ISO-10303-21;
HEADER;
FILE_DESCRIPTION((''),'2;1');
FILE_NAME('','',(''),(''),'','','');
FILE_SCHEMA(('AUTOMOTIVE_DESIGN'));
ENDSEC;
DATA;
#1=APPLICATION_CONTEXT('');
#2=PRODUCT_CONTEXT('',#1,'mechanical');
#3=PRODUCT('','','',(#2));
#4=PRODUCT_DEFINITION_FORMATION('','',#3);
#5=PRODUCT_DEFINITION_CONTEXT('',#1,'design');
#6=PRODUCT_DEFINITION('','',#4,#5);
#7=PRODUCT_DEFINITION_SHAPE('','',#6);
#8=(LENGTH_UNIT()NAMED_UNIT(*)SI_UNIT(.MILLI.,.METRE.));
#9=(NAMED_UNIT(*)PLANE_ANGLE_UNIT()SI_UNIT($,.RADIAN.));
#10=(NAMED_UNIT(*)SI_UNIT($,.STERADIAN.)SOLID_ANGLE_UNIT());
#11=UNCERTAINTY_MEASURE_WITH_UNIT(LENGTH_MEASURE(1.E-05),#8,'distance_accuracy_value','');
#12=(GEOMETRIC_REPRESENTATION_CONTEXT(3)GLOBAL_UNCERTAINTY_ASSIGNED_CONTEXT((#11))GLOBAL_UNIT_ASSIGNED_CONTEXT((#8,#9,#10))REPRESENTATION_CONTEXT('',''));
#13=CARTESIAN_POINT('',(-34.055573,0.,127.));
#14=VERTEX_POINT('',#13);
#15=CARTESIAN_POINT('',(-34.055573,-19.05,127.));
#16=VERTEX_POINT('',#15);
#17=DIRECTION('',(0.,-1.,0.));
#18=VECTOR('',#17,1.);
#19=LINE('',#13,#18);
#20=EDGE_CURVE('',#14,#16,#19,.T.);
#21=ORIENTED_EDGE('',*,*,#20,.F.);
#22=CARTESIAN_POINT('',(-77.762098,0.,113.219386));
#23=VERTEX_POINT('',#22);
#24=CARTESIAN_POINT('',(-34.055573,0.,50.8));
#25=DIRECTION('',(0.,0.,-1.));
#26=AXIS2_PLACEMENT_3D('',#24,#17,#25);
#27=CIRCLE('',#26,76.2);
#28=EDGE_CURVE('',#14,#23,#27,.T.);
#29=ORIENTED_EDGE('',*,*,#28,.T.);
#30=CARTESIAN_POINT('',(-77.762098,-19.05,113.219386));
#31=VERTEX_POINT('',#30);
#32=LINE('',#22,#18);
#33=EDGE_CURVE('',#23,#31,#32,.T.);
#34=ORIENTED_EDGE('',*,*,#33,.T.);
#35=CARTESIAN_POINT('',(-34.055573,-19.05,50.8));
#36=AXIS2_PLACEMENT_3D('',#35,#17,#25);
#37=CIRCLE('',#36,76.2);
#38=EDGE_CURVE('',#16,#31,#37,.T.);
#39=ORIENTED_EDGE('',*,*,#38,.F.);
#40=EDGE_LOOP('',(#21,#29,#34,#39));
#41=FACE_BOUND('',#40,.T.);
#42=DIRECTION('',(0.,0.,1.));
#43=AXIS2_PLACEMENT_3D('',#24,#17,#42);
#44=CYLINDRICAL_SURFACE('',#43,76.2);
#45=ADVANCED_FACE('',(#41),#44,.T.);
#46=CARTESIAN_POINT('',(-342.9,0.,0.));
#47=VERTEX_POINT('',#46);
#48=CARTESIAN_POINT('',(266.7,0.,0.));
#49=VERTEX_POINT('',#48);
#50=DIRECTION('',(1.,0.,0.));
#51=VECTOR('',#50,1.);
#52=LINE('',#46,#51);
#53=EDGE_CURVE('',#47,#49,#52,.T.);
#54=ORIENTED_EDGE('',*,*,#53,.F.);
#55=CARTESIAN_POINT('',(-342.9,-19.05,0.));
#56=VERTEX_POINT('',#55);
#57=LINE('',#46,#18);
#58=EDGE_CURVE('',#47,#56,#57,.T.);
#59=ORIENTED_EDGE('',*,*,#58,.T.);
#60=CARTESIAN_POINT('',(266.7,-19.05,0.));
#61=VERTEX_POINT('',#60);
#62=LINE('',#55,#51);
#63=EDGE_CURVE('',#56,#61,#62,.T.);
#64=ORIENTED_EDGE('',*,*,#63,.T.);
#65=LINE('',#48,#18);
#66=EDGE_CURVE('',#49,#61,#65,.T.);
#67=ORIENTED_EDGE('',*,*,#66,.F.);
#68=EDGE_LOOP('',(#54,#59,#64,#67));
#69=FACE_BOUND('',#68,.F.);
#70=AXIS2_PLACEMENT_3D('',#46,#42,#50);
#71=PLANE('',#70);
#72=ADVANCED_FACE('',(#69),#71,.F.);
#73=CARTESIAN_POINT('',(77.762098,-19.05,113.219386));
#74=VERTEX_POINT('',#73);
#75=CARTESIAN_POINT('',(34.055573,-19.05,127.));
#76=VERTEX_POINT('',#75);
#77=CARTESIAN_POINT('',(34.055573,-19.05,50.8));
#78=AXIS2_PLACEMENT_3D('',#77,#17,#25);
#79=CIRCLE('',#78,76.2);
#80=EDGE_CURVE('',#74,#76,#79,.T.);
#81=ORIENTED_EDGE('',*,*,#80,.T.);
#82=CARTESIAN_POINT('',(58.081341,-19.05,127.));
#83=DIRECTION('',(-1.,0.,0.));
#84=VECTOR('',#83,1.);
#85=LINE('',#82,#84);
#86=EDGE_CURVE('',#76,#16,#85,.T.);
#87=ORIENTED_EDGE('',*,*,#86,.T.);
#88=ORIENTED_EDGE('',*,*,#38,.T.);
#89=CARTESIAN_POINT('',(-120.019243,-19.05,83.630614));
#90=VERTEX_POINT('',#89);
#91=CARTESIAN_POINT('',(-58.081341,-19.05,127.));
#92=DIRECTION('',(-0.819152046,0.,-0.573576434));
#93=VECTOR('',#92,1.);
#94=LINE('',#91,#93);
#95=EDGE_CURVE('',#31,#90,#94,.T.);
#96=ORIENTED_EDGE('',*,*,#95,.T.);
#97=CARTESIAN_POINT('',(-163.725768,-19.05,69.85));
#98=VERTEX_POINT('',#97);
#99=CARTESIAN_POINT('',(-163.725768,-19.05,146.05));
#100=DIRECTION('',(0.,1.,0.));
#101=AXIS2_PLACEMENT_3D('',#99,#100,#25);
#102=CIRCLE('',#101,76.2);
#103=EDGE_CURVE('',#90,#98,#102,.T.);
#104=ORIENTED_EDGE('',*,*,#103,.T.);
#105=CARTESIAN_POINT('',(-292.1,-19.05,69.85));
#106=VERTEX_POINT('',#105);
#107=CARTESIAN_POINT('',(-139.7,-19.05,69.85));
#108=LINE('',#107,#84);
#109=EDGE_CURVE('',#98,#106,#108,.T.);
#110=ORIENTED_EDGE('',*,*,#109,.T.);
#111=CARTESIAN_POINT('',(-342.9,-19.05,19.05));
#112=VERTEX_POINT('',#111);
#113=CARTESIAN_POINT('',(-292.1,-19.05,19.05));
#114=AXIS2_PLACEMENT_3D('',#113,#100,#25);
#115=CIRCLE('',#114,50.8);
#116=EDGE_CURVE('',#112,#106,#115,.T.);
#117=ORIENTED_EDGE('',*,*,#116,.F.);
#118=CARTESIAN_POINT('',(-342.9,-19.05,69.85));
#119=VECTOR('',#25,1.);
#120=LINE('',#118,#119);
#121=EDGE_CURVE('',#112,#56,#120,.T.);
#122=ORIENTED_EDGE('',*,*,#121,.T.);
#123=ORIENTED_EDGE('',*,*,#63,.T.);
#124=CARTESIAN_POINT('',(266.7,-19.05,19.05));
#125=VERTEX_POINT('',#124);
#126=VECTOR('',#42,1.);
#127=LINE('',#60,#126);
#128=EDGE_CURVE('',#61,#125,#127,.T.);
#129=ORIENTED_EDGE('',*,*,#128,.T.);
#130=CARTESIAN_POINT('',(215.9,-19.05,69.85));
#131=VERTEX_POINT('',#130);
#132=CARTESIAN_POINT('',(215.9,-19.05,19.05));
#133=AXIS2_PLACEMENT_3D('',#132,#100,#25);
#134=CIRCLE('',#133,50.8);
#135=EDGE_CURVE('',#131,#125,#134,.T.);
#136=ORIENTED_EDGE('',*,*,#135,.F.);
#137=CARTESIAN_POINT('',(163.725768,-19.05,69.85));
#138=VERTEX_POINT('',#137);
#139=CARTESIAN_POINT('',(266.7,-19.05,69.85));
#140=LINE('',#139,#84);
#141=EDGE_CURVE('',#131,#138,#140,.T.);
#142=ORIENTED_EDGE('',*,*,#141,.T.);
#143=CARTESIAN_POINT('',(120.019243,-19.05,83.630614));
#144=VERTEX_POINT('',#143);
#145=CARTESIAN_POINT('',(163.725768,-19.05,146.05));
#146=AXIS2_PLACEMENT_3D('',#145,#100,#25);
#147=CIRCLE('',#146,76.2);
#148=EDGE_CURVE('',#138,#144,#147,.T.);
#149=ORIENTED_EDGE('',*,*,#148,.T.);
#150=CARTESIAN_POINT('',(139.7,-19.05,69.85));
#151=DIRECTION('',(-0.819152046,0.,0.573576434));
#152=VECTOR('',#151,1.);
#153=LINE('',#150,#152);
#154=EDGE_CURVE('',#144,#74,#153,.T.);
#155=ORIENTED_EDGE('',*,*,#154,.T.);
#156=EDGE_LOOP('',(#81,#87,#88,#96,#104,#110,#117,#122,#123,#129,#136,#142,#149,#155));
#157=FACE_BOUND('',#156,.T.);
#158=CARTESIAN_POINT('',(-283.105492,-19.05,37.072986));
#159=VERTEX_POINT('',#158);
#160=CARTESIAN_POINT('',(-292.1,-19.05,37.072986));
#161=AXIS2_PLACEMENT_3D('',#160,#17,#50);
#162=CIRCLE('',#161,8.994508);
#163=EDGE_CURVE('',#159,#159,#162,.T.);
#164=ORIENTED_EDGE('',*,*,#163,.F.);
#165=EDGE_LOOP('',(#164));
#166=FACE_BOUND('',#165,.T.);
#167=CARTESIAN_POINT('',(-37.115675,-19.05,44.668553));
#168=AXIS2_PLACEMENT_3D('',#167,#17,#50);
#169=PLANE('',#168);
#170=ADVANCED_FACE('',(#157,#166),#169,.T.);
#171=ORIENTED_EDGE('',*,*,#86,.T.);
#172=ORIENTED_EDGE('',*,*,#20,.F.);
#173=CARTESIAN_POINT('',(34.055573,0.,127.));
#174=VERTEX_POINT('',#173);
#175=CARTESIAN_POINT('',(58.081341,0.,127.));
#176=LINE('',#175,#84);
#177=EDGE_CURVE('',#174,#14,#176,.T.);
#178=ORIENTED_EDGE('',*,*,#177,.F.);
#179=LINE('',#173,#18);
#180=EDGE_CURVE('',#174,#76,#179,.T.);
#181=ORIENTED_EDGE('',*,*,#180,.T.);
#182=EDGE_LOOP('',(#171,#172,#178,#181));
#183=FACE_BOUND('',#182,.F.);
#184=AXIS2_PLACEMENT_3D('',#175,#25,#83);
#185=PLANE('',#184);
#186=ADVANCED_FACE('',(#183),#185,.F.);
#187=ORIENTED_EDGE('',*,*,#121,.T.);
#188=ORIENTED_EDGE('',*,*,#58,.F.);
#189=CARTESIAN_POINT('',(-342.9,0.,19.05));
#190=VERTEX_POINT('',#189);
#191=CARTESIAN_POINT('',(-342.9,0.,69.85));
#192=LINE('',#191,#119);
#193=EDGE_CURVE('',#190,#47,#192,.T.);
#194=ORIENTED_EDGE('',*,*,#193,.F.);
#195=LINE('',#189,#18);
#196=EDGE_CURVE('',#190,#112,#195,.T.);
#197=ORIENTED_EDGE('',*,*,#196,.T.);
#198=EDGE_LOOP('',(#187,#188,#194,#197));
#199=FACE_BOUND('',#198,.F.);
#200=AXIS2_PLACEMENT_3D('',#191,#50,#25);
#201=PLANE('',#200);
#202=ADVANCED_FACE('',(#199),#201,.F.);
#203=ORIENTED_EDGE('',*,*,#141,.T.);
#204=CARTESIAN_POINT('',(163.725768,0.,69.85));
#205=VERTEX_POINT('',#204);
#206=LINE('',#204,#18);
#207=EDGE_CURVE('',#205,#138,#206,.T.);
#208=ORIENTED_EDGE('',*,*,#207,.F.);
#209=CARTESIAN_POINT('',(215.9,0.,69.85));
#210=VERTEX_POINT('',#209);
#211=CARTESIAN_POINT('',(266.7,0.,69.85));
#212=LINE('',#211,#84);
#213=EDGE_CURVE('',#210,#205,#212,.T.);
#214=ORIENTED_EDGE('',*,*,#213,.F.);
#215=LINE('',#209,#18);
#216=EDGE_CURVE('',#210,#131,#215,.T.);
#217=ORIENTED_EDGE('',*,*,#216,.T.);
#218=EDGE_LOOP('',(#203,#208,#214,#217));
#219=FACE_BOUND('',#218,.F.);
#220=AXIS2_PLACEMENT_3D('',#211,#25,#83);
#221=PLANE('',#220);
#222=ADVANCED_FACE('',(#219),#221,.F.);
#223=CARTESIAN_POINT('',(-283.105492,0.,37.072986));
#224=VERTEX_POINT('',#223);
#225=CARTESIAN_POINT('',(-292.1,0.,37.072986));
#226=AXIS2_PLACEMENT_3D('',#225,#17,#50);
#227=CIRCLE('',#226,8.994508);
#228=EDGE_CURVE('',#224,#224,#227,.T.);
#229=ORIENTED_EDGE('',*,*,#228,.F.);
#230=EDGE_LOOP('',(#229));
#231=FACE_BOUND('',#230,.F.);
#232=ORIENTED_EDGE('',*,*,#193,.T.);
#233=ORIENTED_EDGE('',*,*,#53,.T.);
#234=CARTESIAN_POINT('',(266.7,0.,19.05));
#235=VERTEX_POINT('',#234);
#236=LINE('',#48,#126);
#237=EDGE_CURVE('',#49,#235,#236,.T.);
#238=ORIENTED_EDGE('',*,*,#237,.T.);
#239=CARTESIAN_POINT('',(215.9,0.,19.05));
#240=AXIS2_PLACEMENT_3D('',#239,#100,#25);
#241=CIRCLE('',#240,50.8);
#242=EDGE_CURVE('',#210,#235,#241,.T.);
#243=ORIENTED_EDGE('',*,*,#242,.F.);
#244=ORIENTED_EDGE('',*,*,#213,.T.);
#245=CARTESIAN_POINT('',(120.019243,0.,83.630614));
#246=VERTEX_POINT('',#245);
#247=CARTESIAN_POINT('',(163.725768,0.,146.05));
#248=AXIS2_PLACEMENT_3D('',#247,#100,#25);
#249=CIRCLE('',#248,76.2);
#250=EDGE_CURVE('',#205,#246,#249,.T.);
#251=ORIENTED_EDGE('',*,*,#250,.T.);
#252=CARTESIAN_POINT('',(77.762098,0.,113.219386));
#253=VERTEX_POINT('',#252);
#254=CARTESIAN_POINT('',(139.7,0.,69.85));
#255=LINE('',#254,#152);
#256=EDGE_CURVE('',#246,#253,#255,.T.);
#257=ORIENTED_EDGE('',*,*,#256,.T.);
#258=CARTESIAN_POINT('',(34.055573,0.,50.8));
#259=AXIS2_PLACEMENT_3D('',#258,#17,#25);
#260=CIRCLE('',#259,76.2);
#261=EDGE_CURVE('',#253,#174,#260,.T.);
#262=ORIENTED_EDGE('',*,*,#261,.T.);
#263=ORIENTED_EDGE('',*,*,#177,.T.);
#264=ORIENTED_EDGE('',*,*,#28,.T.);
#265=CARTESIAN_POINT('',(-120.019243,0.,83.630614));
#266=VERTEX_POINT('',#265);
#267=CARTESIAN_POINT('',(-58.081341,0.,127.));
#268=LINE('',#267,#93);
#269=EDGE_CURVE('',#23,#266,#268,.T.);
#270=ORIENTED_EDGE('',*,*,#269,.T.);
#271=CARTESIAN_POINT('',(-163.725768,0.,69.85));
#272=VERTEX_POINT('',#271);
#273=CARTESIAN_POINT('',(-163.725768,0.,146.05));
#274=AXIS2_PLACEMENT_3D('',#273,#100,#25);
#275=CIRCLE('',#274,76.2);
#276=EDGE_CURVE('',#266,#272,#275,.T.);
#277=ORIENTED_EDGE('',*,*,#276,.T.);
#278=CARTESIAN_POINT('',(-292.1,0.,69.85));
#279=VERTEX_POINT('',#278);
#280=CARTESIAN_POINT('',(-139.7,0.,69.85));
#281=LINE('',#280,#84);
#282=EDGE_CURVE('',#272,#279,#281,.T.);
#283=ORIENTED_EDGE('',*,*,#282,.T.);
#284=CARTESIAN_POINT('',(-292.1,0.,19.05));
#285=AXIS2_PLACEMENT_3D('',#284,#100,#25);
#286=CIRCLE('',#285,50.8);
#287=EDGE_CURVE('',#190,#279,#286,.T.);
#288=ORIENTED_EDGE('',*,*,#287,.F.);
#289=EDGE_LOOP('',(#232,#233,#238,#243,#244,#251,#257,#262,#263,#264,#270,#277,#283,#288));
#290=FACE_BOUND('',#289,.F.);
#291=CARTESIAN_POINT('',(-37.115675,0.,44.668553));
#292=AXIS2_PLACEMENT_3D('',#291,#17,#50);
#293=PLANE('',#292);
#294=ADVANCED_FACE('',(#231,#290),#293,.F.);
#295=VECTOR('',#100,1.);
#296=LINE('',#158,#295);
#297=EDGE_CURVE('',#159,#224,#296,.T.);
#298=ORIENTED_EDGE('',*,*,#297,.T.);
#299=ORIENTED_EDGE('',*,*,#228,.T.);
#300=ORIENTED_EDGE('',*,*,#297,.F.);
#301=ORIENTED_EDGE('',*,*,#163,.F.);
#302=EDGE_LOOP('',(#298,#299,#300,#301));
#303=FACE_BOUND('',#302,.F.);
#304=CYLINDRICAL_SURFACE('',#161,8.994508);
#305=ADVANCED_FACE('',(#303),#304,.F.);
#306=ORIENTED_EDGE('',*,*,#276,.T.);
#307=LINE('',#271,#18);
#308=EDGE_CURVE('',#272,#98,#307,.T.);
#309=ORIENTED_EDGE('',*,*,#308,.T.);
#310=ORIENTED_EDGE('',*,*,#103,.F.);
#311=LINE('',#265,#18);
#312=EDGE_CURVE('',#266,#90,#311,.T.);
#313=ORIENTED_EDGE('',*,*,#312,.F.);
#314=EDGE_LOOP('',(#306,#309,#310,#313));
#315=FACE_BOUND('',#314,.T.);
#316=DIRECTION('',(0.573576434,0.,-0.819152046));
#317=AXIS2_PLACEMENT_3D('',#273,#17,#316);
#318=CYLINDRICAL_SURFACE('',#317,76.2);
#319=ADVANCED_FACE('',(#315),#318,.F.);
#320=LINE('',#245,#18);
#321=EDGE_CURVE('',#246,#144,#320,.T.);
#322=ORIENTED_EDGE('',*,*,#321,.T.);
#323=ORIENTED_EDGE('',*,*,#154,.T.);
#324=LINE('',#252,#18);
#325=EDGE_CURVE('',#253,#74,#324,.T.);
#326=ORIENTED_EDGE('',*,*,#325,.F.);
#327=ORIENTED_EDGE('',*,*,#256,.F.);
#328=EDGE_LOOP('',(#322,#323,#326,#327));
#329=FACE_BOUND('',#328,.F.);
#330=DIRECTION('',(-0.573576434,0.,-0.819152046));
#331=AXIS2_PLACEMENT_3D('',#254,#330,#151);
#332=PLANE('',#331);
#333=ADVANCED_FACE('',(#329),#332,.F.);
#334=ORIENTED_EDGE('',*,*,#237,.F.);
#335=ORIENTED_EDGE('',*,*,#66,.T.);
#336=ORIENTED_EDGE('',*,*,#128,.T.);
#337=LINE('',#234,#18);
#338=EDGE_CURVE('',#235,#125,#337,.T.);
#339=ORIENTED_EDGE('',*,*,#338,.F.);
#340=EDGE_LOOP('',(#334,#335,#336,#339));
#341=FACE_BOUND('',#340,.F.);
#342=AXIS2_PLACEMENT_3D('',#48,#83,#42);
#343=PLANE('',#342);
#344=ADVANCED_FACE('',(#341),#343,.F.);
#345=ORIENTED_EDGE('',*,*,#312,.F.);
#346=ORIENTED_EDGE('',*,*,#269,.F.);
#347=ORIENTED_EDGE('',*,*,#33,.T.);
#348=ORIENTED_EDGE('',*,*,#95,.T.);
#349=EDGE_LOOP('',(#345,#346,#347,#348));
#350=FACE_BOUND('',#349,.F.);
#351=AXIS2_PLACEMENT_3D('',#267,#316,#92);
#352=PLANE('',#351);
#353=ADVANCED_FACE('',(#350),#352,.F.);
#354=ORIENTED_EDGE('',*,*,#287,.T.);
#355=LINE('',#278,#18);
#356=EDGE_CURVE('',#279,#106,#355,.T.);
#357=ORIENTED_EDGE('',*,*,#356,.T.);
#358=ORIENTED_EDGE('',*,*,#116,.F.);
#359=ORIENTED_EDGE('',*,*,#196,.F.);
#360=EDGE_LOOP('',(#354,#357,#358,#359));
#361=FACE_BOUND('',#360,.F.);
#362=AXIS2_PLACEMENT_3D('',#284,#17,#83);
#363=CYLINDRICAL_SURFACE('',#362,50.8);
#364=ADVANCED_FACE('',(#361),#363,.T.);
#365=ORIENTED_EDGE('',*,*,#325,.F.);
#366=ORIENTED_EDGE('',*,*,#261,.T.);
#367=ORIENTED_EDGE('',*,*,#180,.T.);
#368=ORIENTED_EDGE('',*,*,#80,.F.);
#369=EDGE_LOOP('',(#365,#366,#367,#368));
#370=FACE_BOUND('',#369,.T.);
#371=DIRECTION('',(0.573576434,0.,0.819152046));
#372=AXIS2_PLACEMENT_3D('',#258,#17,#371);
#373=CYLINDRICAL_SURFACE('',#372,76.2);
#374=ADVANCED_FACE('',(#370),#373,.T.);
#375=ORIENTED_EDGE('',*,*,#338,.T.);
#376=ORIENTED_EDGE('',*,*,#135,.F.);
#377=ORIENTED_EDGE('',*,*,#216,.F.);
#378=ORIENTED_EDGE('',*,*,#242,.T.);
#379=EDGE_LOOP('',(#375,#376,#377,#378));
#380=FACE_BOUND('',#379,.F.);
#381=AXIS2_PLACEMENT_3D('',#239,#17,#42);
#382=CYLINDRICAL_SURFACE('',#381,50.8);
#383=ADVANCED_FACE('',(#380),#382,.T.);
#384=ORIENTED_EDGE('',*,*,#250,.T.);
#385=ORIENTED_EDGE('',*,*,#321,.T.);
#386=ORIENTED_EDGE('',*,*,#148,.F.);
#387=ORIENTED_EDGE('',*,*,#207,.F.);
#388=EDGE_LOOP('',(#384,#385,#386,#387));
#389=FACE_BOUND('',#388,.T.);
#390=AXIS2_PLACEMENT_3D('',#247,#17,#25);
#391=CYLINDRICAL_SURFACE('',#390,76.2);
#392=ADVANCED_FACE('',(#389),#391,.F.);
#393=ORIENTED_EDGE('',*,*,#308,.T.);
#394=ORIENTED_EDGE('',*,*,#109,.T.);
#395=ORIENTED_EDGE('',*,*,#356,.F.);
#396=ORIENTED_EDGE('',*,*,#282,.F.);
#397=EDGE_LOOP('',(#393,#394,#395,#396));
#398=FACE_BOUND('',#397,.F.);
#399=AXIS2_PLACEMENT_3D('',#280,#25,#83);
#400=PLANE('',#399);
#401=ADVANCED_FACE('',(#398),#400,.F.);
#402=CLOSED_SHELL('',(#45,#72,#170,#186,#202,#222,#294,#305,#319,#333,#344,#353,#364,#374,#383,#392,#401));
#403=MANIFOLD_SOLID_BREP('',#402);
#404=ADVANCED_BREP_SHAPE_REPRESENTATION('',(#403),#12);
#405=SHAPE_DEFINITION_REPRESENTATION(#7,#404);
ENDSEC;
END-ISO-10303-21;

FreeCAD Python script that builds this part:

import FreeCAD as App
import Part
import Sketcher
Q = App.Units.Quantity


def edges_at(feature, points):
    """Names of the edges that pass closest to the given points."""
    edges = feature.Shape.Edges
    near = lambda p: min(range(len(edges)), key=lambda i: edges[i].distToShape(Part.Vertex(*p))[0])
    return sorted({f"Edge{near(p) + 1}" for p in points})

doc = App.newDocument("Part")
body = doc.addObject("PartDesign::Body", "Body")

# Sketch on XZ plane
sketch1 = body.newObject("Sketcher::SketchObject", "Sketch")
sketch1.AttachmentSupport = (doc.getObject("XZ_Plane"), [""])
sketch1.MapMode = "FlatFace"
sketch1.addGeometry(Part.LineSegment(App.Vector(-343, 70, 0), App.Vector(-343, 0, 0)), False)
sketch1.addGeometry(Part.LineSegment(App.Vector(-343, 0, 0), App.Vector(267, 0, 0)), False)
sketch1.addGeometry(Part.LineSegment(App.Vector(267, 0, 0), App.Vector(267, 70, 0)), False)
sketch1.addGeometry(Part.LineSegment(App.Vector(267, 70, 0), App.Vector(140, 70, 0)), False)
sketch1.addGeometry(Part.LineSegment(App.Vector(140, 70, 0), App.Vector(58, 127, 0)), False)
sketch1.addGeometry(Part.LineSegment(App.Vector(58, 127, 0), App.Vector(-58, 127, 0)), False)
sketch1.addGeometry(Part.LineSegment(App.Vector(-58, 127, 0), App.Vector(-140, 70, 0)), False)
sketch1.addGeometry(Part.LineSegment(App.Vector(-140, 70, 0), App.Vector(-343, 70, 0)), False)
sketch1.addConstraint(Sketcher.Constraint("Coincident", 0, 2, 1, 1))
sketch1.addConstraint(Sketcher.Constraint("Coincident", 1, 2, 2, 1))
sketch1.addConstraint(Sketcher.Constraint("Coincident", 2, 2, 3, 1))
sketch1.addConstraint(Sketcher.Constraint("Coincident", 3, 2, 4, 1))
sketch1.addConstraint(Sketcher.Constraint("Coincident", 4, 2, 5, 1))
sketch1.addConstraint(Sketcher.Constraint("Coincident", 5, 2, 6, 1))
sketch1.addConstraint(Sketcher.Constraint("Coincident", 6, 2, 7, 1))
sketch1.addConstraint(Sketcher.Constraint("Coincident", 7, 2, 0, 1))
sketch1.addConstraint(Sketcher.Constraint("Vertical", 0))
sketch1.addConstraint(Sketcher.Constraint("Horizontal", 1))
sketch1.addConstraint(Sketcher.Constraint("Vertical", 2))
sketch1.addConstraint(Sketcher.Constraint("Horizontal", 3))
sketch1.addConstraint(Sketcher.Constraint("Horizontal", 5))
sketch1.addConstraint(Sketcher.Constraint("Horizontal", 7))
sketch1.addConstraint(Sketcher.Constraint("Symmetric", 3, 2, 6, 2, -2))
sketch1.addConstraint(Sketcher.Constraint("PointOnObject", 0, 2, -1))
sketch1.addConstraint(Sketcher.Constraint("Equal", 4, 6))
sketch1.addConstraint(Sketcher.Constraint("DistanceX", 1, 1, 1, 2, Q("24 in")))
sketch1.addConstraint(Sketcher.Constraint("DistanceX", 3, 2, 3, 1, Q("5 in")))
sketch1.addConstraint(Sketcher.Constraint("DistanceX", 7, 2, 7, 1, Q("8 in")))
sketch1.addConstraint(Sketcher.Constraint("DistanceY", -1, 1, 4, 2, Q("5 in")))
sketch1.addConstraint(Sketcher.Constraint("Angle", 4, Q("145 deg")))
sketch1.addConstraint(Sketcher.Constraint("DistanceY", 0, 2, 0, 1, Q("2.75 in")))
pad1 = body.newObject("PartDesign::Pad", "Pad")
pad1.Profile = sketch1
pad1.Length = Q("0.75 in")
doc.recompute()

fillet = body.newObject("PartDesign::Fillet", "Fillet")
fillet.Base = (pad1, edges_at(pad1, [
    (139.7, -9.525, 69.85),
    (58.081, -9.525, 127),
    (-58.081, -9.525, 127),
    (-139.7, -9.525, 69.85),
]))
fillet.Radius = Q("3 in")
doc.recompute()

fillet2 = body.newObject("PartDesign::Fillet", "Fillet001")
fillet2.Base = (fillet, edges_at(fillet, [(266.7, -9.525, 69.85), (-342.9, -9.525, 69.85)]))
fillet2.Radius = Q("2 in")

# Sketch on XZ plane
sketch2 = body.newObject("Sketcher::SketchObject", "Sketch001")
sketch2.AttachmentSupport = (doc.getObject("XZ_Plane"), [""])
sketch2.MapMode = "FlatFace"
sketch2.AttachmentOffset = App.Placement(App.Vector(0, 0, 0.75 * 25.4), App.Rotation())
sketch2.addGeometry(Part.Circle(App.Vector(-292, 37, 0), App.Vector(0, 0, 1), 9), False)
sketch2.addConstraint(Sketcher.Constraint("DistanceX", 0, 3, -1, 1, Q("11.5 in")))
sketch2.addConstraint(Sketcher.Constraint("Diameter", 0, Q("17.989016 mm")))
sketch2.addConstraint(Sketcher.Constraint("DistanceY", -1, 1, 0, 3, Q("37.072986 mm")))
pocket1 = body.newObject("PartDesign::Pocket", "Pocket")
pocket1.Profile = sketch2
pocket1.Length = Q("1 in")

doc.recompute()
